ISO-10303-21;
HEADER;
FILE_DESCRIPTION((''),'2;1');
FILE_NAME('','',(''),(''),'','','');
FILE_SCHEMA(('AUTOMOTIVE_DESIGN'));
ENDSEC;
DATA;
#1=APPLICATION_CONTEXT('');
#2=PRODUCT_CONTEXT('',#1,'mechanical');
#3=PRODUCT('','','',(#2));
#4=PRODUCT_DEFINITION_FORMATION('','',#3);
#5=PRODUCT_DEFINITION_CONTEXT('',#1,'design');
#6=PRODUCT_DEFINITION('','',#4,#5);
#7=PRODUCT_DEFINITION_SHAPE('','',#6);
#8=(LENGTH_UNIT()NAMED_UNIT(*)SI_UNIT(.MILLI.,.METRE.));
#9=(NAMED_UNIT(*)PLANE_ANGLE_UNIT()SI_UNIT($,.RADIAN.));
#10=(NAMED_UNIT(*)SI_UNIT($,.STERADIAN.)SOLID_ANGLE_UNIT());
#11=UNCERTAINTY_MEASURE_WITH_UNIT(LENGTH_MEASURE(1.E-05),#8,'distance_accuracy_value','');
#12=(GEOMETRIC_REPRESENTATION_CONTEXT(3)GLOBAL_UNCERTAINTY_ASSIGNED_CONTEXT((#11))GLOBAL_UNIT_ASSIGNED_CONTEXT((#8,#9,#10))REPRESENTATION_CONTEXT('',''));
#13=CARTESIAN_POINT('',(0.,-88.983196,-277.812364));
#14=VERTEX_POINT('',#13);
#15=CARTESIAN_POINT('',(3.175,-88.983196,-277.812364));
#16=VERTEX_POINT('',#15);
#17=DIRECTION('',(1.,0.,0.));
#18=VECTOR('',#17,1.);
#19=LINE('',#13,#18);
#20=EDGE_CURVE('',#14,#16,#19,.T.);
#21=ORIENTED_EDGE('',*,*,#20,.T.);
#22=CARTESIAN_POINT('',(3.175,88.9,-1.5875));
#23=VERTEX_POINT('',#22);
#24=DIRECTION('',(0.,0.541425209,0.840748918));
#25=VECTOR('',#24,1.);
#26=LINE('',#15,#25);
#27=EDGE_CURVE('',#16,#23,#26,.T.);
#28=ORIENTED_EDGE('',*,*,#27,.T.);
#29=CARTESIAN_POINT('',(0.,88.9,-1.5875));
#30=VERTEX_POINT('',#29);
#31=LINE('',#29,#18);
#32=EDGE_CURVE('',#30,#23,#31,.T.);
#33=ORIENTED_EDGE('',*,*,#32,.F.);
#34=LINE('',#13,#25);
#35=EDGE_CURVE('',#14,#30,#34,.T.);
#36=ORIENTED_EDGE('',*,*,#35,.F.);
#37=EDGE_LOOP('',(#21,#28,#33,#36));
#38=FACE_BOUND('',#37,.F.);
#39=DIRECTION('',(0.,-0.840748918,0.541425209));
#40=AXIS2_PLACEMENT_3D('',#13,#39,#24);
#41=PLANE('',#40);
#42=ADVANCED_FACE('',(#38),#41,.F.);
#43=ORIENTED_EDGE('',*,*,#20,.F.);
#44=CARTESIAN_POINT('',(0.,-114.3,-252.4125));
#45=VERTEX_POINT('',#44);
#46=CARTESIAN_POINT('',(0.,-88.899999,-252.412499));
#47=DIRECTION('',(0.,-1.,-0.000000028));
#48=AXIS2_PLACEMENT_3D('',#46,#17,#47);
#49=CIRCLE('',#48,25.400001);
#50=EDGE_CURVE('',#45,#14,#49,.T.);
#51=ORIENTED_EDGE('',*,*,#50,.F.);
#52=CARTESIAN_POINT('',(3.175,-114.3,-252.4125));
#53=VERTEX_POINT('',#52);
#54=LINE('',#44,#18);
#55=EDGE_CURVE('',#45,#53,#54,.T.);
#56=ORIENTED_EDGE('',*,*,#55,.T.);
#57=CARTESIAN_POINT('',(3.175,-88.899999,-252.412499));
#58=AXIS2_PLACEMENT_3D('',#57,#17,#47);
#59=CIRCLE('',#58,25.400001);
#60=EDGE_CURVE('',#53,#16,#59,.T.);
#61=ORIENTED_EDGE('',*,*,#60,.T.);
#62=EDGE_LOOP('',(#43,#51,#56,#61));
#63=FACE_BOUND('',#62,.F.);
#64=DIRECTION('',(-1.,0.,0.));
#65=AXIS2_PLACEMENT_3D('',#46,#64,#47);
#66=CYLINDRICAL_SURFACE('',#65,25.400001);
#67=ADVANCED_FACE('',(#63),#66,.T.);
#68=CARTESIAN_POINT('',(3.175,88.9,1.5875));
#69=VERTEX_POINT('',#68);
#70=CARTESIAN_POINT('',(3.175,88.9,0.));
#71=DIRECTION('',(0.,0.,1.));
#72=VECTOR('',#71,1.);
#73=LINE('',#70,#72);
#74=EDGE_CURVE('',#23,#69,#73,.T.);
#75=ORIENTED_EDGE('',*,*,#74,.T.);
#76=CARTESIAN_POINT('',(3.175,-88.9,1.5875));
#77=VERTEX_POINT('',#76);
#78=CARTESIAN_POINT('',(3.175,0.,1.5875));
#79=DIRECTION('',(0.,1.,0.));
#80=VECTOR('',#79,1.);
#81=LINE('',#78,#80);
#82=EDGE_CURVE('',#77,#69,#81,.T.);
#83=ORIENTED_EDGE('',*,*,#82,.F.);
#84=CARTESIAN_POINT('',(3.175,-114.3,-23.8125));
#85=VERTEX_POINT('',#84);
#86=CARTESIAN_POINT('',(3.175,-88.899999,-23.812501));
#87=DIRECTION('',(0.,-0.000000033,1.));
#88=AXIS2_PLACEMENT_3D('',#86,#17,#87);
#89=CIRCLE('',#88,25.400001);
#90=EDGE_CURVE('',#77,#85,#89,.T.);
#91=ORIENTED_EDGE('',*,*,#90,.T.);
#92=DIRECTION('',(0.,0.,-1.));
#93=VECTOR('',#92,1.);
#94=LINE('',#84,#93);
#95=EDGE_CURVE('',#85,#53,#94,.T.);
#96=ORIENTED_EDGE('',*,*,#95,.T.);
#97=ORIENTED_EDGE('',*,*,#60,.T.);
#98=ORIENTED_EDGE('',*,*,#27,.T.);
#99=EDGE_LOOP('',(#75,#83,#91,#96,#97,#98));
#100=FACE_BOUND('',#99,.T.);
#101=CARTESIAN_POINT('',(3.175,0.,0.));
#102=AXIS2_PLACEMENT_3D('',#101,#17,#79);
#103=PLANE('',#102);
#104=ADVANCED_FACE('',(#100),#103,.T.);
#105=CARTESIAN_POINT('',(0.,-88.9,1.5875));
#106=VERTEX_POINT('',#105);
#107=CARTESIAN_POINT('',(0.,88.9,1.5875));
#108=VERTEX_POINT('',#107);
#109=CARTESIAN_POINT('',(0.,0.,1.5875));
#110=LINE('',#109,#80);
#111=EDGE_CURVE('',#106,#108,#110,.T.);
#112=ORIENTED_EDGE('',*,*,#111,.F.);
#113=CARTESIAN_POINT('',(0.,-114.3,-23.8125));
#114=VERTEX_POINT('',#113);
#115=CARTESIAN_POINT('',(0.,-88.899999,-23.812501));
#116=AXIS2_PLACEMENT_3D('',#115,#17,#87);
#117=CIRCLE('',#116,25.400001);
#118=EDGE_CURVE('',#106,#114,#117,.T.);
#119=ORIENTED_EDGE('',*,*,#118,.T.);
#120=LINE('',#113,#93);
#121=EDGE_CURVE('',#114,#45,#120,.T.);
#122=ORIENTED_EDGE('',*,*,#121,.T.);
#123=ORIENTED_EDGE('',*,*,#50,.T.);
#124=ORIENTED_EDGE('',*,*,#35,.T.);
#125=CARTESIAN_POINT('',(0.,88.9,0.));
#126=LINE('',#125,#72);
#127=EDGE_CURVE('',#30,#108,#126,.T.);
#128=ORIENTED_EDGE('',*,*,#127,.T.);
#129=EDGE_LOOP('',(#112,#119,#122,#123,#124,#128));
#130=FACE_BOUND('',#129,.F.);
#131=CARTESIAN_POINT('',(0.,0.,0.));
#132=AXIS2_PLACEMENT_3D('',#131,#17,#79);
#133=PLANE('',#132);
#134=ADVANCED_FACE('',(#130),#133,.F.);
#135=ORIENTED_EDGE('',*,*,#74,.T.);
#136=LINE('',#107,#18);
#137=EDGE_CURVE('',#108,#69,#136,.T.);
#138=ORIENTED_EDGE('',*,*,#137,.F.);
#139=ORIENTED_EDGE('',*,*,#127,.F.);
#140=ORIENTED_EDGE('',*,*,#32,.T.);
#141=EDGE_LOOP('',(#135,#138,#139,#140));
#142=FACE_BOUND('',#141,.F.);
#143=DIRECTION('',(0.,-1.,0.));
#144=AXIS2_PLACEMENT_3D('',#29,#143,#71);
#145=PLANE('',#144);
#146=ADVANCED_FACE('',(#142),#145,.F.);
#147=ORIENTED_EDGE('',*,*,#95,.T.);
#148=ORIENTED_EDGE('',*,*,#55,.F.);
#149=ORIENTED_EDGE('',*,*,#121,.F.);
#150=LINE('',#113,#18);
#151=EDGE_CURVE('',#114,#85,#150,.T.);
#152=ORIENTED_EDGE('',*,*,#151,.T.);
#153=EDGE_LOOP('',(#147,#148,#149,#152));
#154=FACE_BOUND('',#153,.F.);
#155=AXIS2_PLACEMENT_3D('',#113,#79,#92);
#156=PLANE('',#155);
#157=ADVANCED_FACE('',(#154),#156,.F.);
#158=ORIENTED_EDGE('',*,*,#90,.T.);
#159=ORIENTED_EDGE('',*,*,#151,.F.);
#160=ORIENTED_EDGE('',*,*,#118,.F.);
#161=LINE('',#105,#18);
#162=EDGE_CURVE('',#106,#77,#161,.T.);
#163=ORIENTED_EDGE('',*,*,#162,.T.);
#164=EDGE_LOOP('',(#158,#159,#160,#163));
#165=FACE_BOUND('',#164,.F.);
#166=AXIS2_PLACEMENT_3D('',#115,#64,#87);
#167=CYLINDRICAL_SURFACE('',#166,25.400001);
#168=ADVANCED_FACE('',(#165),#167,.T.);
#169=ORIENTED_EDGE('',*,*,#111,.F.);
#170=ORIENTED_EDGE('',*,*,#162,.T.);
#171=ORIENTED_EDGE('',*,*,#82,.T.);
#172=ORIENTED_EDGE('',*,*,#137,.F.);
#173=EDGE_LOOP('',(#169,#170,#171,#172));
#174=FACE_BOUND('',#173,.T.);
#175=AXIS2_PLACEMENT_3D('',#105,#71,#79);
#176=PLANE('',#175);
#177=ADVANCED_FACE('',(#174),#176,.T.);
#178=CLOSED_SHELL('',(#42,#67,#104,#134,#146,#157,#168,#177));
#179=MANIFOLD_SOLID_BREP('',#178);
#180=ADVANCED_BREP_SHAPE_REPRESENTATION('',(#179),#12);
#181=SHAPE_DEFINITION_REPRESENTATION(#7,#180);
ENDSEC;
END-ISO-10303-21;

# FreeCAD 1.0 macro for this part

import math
import FreeCAD as App
import Part
import Sketcher
from FreeCAD import Vector
Q = App.Units.Quantity

doc = App.newDocument("Part")
body = doc.addObject("PartDesign::Body", "Body")

# Sketch on YZ plane
sketch1 = body.newObject("Sketcher::SketchObject", "Sketch")
sketch1.AttachmentSupport = (doc.getObject("YZ_Plane"), [""])
sketch1.MapMode = "FlatFace"
sketch1.addGeometry([
    Part.LineSegment(Vector(88.9, -1.6, 0), Vector(88.9, 1.6, 0)),  # 0
    Part.LineSegment(Vector(88.9, 1.6, 0), Vector(-88.9, 1.6, 0)),  # 1
    Part.ArcOfCircle(Part.Circle(Vector(-88.9, -23.8, 0), Vector(0, 0, 1), 25.4), math.radians(90), math.radians(180)),  # 2
    Part.LineSegment(Vector(-114.3, -23.8, 0), Vector(-114.3, -252.4, 0)),  # 3
    Part.ArcOfCircle(Part.Circle(Vector(-88.9, -252.4, 0), Vector(0, 0, 1), 25.4), math.radians(-180), math.radians(-90)),  # 4
    Part.LineSegment(Vector(-89, -277.8, 0), Vector(88.9, -1.6, 0)),  # 5
], False)
sketch1.addConstraint([
    Sketcher.Constraint("Coincident", 0, 2, 1, 1),
    Sketcher.Constraint("Tangent", 1, 2, 2, 1),
    Sketcher.Constraint("Tangent", 2, 2, 3, 1),
    Sketcher.Constraint("Tangent", 3, 2, 4, 1),
    Sketcher.Constraint("Coincident", 4, 2, 5, 1),
    Sketcher.Constraint("Coincident", 5, 2, 0, 1),
    Sketcher.Constraint("Vertical", 0),
    Sketcher.Constraint("Horizontal", 1),
    Sketcher.Constraint("Vertical", 3),
    Sketcher.Constraint("Equal", 2, 4),
    Sketcher.Constraint("Symmetric", 1, 2, 5, 2, -1, 1),
    Sketcher.Constraint("Radius", 2, Q("1 in")),
    Sketcher.Constraint("DistanceX", 1, 2, 1, 1, Q("7 in")),
    Sketcher.Constraint("DistanceY", 3, 2, 3, 1, Q("9 in")),
    Sketcher.Constraint("DistanceY", 0, 1, 0, 2, Q("0.125 in")),
    Sketcher.Constraint("Distance", 5, Q("328.546202 mm")),
])
pad1 = body.newObject("PartDesign::Pad", "Pad")
pad1.Profile = sketch1
pad1.Length = Q("0.125 in")

doc.recompute()
